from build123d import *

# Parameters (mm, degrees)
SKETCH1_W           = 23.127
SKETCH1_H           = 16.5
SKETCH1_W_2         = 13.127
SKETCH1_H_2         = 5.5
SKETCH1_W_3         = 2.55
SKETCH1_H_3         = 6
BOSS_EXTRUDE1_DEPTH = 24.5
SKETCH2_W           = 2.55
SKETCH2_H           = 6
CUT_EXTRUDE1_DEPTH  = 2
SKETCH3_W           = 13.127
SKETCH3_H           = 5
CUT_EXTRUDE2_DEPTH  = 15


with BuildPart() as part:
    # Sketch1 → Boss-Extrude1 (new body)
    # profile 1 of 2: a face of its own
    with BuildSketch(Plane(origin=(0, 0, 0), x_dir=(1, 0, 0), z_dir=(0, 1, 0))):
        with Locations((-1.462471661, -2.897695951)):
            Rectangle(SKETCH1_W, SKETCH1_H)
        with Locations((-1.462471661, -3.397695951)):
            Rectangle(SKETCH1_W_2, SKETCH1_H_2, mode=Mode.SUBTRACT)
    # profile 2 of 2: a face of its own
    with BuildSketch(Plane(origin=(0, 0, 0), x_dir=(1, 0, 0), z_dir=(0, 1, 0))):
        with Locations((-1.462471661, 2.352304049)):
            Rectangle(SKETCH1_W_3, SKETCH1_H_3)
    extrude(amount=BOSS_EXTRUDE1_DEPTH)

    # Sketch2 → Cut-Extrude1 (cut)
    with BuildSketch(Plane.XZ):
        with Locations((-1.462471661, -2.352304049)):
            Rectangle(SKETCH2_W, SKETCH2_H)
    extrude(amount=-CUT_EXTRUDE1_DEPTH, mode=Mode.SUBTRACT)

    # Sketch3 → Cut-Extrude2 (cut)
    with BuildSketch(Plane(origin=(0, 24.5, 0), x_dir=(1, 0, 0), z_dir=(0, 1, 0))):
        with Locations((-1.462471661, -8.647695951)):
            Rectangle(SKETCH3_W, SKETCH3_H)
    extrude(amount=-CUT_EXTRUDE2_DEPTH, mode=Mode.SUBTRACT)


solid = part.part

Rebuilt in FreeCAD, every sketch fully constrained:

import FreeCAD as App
import Part
import Sketcher

V = App.Vector
Q = App.Units.Quantity

doc = App.newDocument("Part")
params = doc.addObject("Spreadsheet::Sheet", "Params")
for row, (alias, value) in enumerate([
    ("sketch1_height", "16.5 mm"),
    ("sketch1_height2", "5.5 mm"),
    ("pad1_length", "24.5 mm"),
    ("sketch2_height", "6 mm"),
    ("sketch2_width", "2.55 mm"),
    ("pocket1_length", "2 mm"),
    ("sketch3_height", "5 mm"),
    ("pocket2_length", "15 mm"),
], start=1):
    params.set(f"A{row}", alias)
    params.set(f"B{row}", "=" + value)
    params.setAlias(f"B{row}", alias)

body = doc.addObject("PartDesign::Body", "Body")

# Sketch on XZ plane
sketch1 = body.newObject("Sketcher::SketchObject", "Sketch")
sketch1.AttachmentSupport = (doc.getObject("XZ_Plane"), [""])
sketch1.MapMode = "FlatFace"
sketch1.addGeometry([
    Part.LineSegment(V(-13.025972, -5.352304, 0), V(-13.025972, 11.147696, 0)),  # 0
    Part.LineSegment(V(-13.025972, 11.147696, 0), V(10.101028, 11.147696, 0)),  # 1
    Part.LineSegment(V(10.101028, 11.147696, 0), V(10.101028, -5.352304, 0)),  # 2
    Part.LineSegment(V(10.101028, -5.352304, 0), V(-13.025972, -5.352304, 0)),  # 3
    Part.LineSegment(V(-8.025972, 0.647696, 0), V(5.101028, 0.647696, 0)),  # 4
    Part.LineSegment(V(5.101028, 0.647696, 0), V(5.101028, 6.147696, 0)),  # 5
    Part.LineSegment(V(5.101028, 6.147696, 0), V(-8.025972, 6.147696, 0)),  # 6
    Part.LineSegment(V(-8.025972, 6.147696, 0), V(-8.025972, 0.647696, 0)),  # 7
], False)
sketch1.addConstraint([
    Sketcher.Constraint("Coincident", 0, 2, 1, 1),
    Sketcher.Constraint("Coincident", 1, 2, 2, 1),
    Sketcher.Constraint("Coincident", 2, 2, 3, 1),
    Sketcher.Constraint("Coincident", 3, 2, 0, 1),
    Sketcher.Constraint("Coincident", 4, 2, 5, 1),
    Sketcher.Constraint("Coincident", 5, 2, 6, 1),
    Sketcher.Constraint("Coincident", 6, 2, 7, 1),
    Sketcher.Constraint("Coincident", 7, 2, 4, 1),
    Sketcher.Constraint("Vertical", 0),
    Sketcher.Constraint("Horizontal", 1),
    Sketcher.Constraint("Vertical", 2),
    Sketcher.Constraint("Horizontal", 3),
    Sketcher.Constraint("Horizontal", 4),
    Sketcher.Constraint("Vertical", 5),
    Sketcher.Constraint("Horizontal", 6),
    Sketcher.Constraint("Vertical", 7),
    Sketcher.Constraint("DistanceY", 0, 1, 0, 2, Q("16.5 mm")),
    Sketcher.Constraint("DistanceY", 5, 1, 5, 2, Q("5.5 mm")),
    Sketcher.Constraint("DistanceX", 4, 2, 2, 2, Q("5 mm")),
    Sketcher.Constraint("DistanceY", 2, 2, 4, 2, Q("6 mm")),
    Sketcher.Constraint("DistanceX", 0, 2, 6, 2, Q("5 mm")),
    Sketcher.Constraint("DistanceX", 1, 1, 1, 2, Q("23.127 mm")),
    Sketcher.Constraint("DistanceX", 0, 2, -1, 1, Q("13.025972 mm")),
    Sketcher.Constraint("DistanceY", -1, 1, 0, 2, Q("11.147696 mm")),
])
sketch1.setExpression("Constraints[16]", "Params.sketch1_height")
sketch1.setExpression("Constraints[17]", "Params.sketch1_height2")
pad1 = body.newObject("PartDesign::Pad", "Pad")
pad1.Profile = sketch1
pad1.setExpression("Length", "Params.pad1_length")
pad1.Reversed = True

# Sketch on XZ plane
sketch2 = body.newObject("Sketcher::SketchObject", "Sketch001")
sketch2.AttachmentSupport = (doc.getObject("XZ_Plane"), [""])
sketch2.MapMode = "FlatFace"
sketch2.addGeometry([
    Part.LineSegment(V(-2.737472, 0.647696, 0), V(-2.737472, -5.352304, 0)),
    Part.LineSegment(V(-2.737472, -5.352304, 0), V(-0.187472, -5.352304, 0)),
    Part.LineSegment(V(-0.187472, -5.352304, 0), V(-0.187472, 0.647696, 0)),
    Part.LineSegment(V(-0.187472, 0.647696, 0), V(-2.737472, 0.647696, 0)),
], False)
sketch2.addConstraint([
    Sketcher.Constraint("Coincident", 0, 2, 1, 1),
    Sketcher.Constraint("Coincident", 1, 2, 2, 1),
    Sketcher.Constraint("Coincident", 2, 2, 3, 1),
    Sketcher.Constraint("Coincident", 3, 2, 0, 1),
    Sketcher.Constraint("Vertical", 0),
    Sketcher.Constraint("Horizontal", 1),
    Sketcher.Constraint("Vertical", 2),
    Sketcher.Constraint("Horizontal", 3),
    Sketcher.Constraint("DistanceY", 0, 2, 0, 1, Q("6 mm")),
    Sketcher.Constraint("DistanceX", 1, 1, 1, 2, Q("2.55 mm")),
    Sketcher.Constraint("DistanceX", 0, 2, -1, 1, Q("2.737472 mm")),
    Sketcher.Constraint("DistanceY", 0, 2, -1, 1, Q("5.352304 mm")),
])
sketch2.setExpression("Constraints[8]", "Params.sketch2_height")
sketch2.setExpression("Constraints[9]", "Params.sketch2_width")
pocket1 = body.newObject("PartDesign::Pocket", "Pocket")
pocket1.Profile = sketch2
pocket1.setExpression("Length", "Params.pocket1_length")

# Sketch on XZ plane
sketch3 = body.newObject("Sketcher::SketchObject", "Sketch002")
sketch3.AttachmentSupport = (doc.getObject("XZ_Plane"), [""])
sketch3.MapMode = "FlatFace"
sketch3.AttachmentOffset = App.Placement(V(0, 0, -24.5), App.Rotation())
sketch3.addGeometry([
    Part.LineSegment(V(-8.025972, 6.147696, 0), V(-8.025972, 11.147696, 0)),
    Part.LineSegment(V(-8.025972, 11.147696, 0), V(5.101028, 11.147696, 0)),
    Part.LineSegment(V(5.101028, 11.147696, 0), V(5.101028, 6.147696, 0)),
    Part.LineSegment(V(5.101028, 6.147696, 0), V(-8.025972, 6.147696, 0)),
], False)
sketch3.addConstraint([
    Sketcher.Constraint("Coincident", 0, 2, 1, 1),
    Sketcher.Constraint("Coincident", 1, 2, 2, 1),
    Sketcher.Constraint("Coincident", 2, 2, 3, 1),
    Sketcher.Constraint("Coincident", 3, 2, 0, 1),
    Sketcher.Constraint("Vertical", 0),
    Sketcher.Constraint("Horizontal", 1),
    Sketcher.Constraint("Vertical", 2),
    Sketcher.Constraint("Horizontal", 3),
    Sketcher.Constraint("DistanceY", 0, 1, 0, 2, Q("5 mm")),
    Sketcher.Constraint("DistanceX", 1, 1, 1, 2, Q("13.127 mm")),
    Sketcher.Constraint("DistanceX", 0, 2, -1, 1, Q("8.025972 mm")),
    Sketcher.Constraint("DistanceY", -1, 1, 0, 2, Q("11.147696 mm")),
])
sketch3.setExpression("Constraints[8]", "Params.sketch3_height")
pocket2 = body.newObject("PartDesign::Pocket", "Pocket001")
pocket2.Profile = sketch3
pocket2.setExpression("Length", "Params.pocket2_length")
pocket2.Reversed = True

doc.recompute()
